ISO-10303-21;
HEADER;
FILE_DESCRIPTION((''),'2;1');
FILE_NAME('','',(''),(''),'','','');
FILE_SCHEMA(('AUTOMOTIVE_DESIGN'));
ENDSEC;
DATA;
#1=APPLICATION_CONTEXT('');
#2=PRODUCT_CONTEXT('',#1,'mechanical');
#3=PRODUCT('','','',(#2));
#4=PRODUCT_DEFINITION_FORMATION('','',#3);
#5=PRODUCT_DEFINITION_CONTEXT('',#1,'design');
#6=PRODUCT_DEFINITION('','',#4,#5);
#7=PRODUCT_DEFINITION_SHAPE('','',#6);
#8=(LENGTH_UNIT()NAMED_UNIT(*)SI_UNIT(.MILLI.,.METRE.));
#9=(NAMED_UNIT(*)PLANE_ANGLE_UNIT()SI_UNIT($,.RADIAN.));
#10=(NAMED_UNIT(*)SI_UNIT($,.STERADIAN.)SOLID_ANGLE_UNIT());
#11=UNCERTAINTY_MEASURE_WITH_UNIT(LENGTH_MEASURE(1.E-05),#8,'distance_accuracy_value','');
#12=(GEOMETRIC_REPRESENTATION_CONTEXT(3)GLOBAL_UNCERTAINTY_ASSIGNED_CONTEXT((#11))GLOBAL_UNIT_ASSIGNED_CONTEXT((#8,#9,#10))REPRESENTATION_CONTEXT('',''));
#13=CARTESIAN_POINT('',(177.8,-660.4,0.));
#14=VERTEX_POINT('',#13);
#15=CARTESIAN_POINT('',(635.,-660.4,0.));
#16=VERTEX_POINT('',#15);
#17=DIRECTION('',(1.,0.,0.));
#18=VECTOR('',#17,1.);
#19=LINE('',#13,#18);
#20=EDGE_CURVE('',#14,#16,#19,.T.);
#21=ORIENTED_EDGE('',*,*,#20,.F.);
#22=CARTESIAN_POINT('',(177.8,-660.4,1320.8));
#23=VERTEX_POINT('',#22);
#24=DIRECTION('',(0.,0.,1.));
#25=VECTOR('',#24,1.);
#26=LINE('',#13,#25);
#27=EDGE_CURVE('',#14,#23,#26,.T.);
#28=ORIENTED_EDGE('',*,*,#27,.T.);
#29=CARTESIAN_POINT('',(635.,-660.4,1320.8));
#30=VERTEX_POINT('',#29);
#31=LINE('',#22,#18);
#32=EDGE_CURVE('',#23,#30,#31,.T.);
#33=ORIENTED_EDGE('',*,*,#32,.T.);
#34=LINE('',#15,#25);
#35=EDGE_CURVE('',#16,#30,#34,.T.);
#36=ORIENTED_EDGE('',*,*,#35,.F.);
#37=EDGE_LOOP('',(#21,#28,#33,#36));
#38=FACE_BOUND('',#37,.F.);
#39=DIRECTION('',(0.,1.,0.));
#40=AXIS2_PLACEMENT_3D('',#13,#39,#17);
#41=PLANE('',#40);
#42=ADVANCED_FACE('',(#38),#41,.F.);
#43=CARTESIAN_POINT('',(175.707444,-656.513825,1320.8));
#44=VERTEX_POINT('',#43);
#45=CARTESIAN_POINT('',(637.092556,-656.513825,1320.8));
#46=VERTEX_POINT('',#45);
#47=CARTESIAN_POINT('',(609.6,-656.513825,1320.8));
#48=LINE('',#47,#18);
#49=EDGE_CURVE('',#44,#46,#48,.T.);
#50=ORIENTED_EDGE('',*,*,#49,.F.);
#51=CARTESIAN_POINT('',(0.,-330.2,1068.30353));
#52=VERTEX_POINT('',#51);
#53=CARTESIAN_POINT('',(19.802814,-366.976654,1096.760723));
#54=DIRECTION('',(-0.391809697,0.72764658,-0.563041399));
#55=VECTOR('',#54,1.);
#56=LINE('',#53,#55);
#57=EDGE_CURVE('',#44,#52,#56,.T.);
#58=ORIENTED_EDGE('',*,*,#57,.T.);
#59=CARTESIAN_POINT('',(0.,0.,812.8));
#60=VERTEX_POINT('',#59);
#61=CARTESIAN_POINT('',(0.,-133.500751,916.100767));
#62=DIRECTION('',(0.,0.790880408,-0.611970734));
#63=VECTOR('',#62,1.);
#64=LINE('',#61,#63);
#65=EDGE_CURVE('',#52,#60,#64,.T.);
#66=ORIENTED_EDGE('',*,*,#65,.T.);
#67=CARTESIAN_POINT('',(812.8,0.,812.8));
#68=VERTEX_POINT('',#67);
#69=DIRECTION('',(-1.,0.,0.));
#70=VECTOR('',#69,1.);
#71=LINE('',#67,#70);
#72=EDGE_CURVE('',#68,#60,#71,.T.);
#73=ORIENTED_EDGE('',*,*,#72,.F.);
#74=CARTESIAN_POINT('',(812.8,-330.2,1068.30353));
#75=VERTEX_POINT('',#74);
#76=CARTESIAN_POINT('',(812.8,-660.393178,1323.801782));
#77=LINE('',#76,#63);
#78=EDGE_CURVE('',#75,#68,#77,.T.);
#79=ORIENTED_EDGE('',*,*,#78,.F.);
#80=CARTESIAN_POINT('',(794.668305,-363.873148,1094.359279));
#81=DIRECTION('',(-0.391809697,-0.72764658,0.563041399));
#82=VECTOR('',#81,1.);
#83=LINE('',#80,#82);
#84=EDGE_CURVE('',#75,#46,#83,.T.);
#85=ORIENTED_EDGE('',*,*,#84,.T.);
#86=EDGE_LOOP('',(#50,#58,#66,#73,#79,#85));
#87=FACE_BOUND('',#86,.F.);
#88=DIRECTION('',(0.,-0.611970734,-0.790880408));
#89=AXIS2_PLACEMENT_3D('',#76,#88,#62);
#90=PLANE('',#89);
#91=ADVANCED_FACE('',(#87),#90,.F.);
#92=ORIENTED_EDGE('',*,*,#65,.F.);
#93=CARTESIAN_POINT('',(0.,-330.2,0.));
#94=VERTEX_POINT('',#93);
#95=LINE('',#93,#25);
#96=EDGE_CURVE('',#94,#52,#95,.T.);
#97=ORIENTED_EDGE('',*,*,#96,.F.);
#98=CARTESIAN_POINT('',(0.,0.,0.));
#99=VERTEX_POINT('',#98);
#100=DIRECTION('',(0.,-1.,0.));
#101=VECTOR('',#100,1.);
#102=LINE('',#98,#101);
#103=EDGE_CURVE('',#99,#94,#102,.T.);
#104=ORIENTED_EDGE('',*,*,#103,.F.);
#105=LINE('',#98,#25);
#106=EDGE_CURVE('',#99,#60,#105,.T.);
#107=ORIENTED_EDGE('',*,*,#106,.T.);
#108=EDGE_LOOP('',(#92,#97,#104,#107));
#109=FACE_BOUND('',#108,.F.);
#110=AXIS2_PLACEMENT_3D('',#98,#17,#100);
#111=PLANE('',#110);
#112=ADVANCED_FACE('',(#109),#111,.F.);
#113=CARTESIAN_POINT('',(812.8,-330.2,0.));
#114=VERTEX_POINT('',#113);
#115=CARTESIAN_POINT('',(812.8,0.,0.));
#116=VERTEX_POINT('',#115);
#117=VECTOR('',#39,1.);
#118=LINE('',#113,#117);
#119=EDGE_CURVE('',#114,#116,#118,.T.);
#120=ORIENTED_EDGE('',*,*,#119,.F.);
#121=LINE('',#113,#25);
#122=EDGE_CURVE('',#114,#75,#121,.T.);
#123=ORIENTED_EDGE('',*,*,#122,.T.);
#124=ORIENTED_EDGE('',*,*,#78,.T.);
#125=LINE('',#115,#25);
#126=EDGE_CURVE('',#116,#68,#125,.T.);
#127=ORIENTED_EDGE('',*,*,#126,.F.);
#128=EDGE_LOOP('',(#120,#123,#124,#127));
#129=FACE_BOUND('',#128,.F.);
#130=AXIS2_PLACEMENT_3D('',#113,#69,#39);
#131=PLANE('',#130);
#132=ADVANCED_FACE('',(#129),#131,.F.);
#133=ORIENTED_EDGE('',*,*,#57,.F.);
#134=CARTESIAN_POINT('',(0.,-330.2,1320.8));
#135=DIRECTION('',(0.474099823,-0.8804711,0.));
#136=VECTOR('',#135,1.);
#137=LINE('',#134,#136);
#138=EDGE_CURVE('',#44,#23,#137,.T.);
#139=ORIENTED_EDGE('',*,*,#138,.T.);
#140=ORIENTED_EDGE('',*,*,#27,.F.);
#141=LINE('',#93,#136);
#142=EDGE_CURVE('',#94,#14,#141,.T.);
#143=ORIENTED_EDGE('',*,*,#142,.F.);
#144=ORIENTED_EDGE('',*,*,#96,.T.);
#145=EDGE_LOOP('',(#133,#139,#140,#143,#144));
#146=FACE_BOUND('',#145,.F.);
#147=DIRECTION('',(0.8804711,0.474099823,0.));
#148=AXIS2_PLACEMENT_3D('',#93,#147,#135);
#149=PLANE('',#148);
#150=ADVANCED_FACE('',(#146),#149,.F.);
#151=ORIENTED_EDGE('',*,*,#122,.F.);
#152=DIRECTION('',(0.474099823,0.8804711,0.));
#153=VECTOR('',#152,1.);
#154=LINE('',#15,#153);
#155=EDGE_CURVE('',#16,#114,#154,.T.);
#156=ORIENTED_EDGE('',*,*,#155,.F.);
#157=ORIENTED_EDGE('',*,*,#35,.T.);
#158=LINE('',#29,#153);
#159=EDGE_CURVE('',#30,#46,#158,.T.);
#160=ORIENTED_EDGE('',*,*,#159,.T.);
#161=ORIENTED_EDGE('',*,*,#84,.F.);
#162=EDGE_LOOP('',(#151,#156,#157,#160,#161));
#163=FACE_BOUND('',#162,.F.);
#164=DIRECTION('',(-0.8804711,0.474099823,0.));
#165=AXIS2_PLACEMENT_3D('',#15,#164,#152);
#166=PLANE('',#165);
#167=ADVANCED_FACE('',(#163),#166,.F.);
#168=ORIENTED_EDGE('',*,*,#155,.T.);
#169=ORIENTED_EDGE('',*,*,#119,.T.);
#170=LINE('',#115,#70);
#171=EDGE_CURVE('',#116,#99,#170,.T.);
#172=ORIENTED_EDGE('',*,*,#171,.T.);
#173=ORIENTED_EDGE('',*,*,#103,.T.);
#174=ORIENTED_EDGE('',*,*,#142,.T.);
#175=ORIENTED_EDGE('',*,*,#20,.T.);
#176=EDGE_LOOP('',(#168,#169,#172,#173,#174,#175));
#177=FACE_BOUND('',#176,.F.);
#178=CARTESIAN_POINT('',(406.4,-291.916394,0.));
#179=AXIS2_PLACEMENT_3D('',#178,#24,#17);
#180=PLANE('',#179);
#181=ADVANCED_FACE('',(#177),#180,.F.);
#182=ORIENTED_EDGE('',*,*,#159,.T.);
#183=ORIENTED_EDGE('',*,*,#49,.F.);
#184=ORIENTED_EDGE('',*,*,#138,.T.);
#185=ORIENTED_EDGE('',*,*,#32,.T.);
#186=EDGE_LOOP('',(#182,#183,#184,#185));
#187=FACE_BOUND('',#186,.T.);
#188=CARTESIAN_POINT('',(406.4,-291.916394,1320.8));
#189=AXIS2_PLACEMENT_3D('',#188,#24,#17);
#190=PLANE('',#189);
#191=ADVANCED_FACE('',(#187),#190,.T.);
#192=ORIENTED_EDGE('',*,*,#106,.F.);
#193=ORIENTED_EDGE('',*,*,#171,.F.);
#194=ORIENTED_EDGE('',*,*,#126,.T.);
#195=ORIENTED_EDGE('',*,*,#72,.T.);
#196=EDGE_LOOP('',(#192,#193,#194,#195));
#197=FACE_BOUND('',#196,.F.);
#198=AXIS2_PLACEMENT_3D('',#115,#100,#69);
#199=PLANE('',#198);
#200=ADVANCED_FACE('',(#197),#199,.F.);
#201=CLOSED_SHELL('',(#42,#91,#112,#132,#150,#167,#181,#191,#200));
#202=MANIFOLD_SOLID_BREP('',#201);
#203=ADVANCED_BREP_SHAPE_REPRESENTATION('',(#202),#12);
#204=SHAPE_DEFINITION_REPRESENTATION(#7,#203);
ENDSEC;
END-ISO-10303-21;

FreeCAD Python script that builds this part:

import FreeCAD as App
import Part
import Sketcher

V = App.Vector
Q = App.Units.Quantity


def add_polygon(sketch, points):
    """Adds a closed chain of lines whose ends are joined by coincident constraints."""
    first, n = sketch.GeometryCount, len(points)
    for a, b in zip(points, points[1:] + points[:1]):
        sketch.addGeometry(Part.LineSegment(App.Vector(*a, 0), App.Vector(*b, 0)), False)
    for i in range(n):
        sketch.addConstraint(Sketcher.Constraint("Coincident", first + i, 2, first + (i + 1) % n, 1))

doc = App.newDocument("Part")
body = doc.addObject("PartDesign::Body", "Body")

# Sketch on XY plane
sketch1 = body.newObject("Sketcher::SketchObject", "Sketch")
sketch1.AttachmentSupport = (doc.getObject("XY_Plane"), [""])
sketch1.MapMode = "FlatFace"
add_polygon(sketch1, [(813, 0), (0, 0), (0, -330), (178, -660), (635, -660), (813, -330)])  # lines 0-5
sketch1.addConstraint(Sketcher.Constraint("Horizontal", 0))
sketch1.addConstraint(Sketcher.Constraint("Vertical", 1))
sketch1.addConstraint(Sketcher.Constraint("Horizontal", 3))
sketch1.addConstraint(Sketcher.Constraint("Vertical", 5))
sketch1.addConstraint(Sketcher.Constraint("Coincident", 0, 2, -1, 1))
sketch1.addConstraint(Sketcher.Constraint("Horizontal", 1, 2, 4, 2))
sketch1.addConstraint(Sketcher.Constraint("Equal", 2, 4))
sketch1.addConstraint(Sketcher.Constraint("DistanceX", 0, 2, 0, 1, Q("32 in")))
sketch1.addConstraint(Sketcher.Constraint("DistanceX", 3, 1, 3, 2, Q("18 in")))
sketch1.addConstraint(Sketcher.Constraint("DistanceY", 1, 2, 1, 1, Q("13 in")))
sketch1.addConstraint(Sketcher.Constraint("DistanceY", 2, 2, -1, 1, Q("26 in")))
pad1 = body.newObject("PartDesign::Pad", "Pad")
pad1.Profile = sketch1
pad1.Length = Q("52 in")

# Sketch on YZ plane
sketch2 = body.newObject("Sketcher::SketchObject", "Sketch001")
sketch2.AttachmentSupport = (doc.getObject("YZ_Plane"), [""])
sketch2.MapMode = "FlatFace"
sketch2.AttachmentOffset = App.Placement(V(0, 0, 32 * 25.4), App.Rotation())
add_polygon(sketch2, [(0, 1320.8), (-660.393178, 1323.801782), (0, 812.8)])  # lines 0-2
sketch2.addConstraint(Sketcher.Constraint("Vertical", 2))
sketch2.addConstraint(Sketcher.Constraint("PointOnObject", 1, 2, -2))
sketch2.addConstraint(Sketcher.Constraint("DistanceY", 2, 1, 2, 2, Q("20 in")))
sketch2.addConstraint(Sketcher.Constraint("Distance", 0, Q("26 in")))
sketch2.addConstraint(Sketcher.Constraint("DistanceY", -1, 1, 1, 2, Q("32 in")))
sketch2.addConstraint(Sketcher.Constraint("DistanceX", 0, 2, -1, 1, Q("660.393178 mm")))
pocket1 = body.newObject("PartDesign::Pocket", "Pocket")
pocket1.Profile = sketch2
pocket1.Type = "ThroughAll"

doc.recompute()
